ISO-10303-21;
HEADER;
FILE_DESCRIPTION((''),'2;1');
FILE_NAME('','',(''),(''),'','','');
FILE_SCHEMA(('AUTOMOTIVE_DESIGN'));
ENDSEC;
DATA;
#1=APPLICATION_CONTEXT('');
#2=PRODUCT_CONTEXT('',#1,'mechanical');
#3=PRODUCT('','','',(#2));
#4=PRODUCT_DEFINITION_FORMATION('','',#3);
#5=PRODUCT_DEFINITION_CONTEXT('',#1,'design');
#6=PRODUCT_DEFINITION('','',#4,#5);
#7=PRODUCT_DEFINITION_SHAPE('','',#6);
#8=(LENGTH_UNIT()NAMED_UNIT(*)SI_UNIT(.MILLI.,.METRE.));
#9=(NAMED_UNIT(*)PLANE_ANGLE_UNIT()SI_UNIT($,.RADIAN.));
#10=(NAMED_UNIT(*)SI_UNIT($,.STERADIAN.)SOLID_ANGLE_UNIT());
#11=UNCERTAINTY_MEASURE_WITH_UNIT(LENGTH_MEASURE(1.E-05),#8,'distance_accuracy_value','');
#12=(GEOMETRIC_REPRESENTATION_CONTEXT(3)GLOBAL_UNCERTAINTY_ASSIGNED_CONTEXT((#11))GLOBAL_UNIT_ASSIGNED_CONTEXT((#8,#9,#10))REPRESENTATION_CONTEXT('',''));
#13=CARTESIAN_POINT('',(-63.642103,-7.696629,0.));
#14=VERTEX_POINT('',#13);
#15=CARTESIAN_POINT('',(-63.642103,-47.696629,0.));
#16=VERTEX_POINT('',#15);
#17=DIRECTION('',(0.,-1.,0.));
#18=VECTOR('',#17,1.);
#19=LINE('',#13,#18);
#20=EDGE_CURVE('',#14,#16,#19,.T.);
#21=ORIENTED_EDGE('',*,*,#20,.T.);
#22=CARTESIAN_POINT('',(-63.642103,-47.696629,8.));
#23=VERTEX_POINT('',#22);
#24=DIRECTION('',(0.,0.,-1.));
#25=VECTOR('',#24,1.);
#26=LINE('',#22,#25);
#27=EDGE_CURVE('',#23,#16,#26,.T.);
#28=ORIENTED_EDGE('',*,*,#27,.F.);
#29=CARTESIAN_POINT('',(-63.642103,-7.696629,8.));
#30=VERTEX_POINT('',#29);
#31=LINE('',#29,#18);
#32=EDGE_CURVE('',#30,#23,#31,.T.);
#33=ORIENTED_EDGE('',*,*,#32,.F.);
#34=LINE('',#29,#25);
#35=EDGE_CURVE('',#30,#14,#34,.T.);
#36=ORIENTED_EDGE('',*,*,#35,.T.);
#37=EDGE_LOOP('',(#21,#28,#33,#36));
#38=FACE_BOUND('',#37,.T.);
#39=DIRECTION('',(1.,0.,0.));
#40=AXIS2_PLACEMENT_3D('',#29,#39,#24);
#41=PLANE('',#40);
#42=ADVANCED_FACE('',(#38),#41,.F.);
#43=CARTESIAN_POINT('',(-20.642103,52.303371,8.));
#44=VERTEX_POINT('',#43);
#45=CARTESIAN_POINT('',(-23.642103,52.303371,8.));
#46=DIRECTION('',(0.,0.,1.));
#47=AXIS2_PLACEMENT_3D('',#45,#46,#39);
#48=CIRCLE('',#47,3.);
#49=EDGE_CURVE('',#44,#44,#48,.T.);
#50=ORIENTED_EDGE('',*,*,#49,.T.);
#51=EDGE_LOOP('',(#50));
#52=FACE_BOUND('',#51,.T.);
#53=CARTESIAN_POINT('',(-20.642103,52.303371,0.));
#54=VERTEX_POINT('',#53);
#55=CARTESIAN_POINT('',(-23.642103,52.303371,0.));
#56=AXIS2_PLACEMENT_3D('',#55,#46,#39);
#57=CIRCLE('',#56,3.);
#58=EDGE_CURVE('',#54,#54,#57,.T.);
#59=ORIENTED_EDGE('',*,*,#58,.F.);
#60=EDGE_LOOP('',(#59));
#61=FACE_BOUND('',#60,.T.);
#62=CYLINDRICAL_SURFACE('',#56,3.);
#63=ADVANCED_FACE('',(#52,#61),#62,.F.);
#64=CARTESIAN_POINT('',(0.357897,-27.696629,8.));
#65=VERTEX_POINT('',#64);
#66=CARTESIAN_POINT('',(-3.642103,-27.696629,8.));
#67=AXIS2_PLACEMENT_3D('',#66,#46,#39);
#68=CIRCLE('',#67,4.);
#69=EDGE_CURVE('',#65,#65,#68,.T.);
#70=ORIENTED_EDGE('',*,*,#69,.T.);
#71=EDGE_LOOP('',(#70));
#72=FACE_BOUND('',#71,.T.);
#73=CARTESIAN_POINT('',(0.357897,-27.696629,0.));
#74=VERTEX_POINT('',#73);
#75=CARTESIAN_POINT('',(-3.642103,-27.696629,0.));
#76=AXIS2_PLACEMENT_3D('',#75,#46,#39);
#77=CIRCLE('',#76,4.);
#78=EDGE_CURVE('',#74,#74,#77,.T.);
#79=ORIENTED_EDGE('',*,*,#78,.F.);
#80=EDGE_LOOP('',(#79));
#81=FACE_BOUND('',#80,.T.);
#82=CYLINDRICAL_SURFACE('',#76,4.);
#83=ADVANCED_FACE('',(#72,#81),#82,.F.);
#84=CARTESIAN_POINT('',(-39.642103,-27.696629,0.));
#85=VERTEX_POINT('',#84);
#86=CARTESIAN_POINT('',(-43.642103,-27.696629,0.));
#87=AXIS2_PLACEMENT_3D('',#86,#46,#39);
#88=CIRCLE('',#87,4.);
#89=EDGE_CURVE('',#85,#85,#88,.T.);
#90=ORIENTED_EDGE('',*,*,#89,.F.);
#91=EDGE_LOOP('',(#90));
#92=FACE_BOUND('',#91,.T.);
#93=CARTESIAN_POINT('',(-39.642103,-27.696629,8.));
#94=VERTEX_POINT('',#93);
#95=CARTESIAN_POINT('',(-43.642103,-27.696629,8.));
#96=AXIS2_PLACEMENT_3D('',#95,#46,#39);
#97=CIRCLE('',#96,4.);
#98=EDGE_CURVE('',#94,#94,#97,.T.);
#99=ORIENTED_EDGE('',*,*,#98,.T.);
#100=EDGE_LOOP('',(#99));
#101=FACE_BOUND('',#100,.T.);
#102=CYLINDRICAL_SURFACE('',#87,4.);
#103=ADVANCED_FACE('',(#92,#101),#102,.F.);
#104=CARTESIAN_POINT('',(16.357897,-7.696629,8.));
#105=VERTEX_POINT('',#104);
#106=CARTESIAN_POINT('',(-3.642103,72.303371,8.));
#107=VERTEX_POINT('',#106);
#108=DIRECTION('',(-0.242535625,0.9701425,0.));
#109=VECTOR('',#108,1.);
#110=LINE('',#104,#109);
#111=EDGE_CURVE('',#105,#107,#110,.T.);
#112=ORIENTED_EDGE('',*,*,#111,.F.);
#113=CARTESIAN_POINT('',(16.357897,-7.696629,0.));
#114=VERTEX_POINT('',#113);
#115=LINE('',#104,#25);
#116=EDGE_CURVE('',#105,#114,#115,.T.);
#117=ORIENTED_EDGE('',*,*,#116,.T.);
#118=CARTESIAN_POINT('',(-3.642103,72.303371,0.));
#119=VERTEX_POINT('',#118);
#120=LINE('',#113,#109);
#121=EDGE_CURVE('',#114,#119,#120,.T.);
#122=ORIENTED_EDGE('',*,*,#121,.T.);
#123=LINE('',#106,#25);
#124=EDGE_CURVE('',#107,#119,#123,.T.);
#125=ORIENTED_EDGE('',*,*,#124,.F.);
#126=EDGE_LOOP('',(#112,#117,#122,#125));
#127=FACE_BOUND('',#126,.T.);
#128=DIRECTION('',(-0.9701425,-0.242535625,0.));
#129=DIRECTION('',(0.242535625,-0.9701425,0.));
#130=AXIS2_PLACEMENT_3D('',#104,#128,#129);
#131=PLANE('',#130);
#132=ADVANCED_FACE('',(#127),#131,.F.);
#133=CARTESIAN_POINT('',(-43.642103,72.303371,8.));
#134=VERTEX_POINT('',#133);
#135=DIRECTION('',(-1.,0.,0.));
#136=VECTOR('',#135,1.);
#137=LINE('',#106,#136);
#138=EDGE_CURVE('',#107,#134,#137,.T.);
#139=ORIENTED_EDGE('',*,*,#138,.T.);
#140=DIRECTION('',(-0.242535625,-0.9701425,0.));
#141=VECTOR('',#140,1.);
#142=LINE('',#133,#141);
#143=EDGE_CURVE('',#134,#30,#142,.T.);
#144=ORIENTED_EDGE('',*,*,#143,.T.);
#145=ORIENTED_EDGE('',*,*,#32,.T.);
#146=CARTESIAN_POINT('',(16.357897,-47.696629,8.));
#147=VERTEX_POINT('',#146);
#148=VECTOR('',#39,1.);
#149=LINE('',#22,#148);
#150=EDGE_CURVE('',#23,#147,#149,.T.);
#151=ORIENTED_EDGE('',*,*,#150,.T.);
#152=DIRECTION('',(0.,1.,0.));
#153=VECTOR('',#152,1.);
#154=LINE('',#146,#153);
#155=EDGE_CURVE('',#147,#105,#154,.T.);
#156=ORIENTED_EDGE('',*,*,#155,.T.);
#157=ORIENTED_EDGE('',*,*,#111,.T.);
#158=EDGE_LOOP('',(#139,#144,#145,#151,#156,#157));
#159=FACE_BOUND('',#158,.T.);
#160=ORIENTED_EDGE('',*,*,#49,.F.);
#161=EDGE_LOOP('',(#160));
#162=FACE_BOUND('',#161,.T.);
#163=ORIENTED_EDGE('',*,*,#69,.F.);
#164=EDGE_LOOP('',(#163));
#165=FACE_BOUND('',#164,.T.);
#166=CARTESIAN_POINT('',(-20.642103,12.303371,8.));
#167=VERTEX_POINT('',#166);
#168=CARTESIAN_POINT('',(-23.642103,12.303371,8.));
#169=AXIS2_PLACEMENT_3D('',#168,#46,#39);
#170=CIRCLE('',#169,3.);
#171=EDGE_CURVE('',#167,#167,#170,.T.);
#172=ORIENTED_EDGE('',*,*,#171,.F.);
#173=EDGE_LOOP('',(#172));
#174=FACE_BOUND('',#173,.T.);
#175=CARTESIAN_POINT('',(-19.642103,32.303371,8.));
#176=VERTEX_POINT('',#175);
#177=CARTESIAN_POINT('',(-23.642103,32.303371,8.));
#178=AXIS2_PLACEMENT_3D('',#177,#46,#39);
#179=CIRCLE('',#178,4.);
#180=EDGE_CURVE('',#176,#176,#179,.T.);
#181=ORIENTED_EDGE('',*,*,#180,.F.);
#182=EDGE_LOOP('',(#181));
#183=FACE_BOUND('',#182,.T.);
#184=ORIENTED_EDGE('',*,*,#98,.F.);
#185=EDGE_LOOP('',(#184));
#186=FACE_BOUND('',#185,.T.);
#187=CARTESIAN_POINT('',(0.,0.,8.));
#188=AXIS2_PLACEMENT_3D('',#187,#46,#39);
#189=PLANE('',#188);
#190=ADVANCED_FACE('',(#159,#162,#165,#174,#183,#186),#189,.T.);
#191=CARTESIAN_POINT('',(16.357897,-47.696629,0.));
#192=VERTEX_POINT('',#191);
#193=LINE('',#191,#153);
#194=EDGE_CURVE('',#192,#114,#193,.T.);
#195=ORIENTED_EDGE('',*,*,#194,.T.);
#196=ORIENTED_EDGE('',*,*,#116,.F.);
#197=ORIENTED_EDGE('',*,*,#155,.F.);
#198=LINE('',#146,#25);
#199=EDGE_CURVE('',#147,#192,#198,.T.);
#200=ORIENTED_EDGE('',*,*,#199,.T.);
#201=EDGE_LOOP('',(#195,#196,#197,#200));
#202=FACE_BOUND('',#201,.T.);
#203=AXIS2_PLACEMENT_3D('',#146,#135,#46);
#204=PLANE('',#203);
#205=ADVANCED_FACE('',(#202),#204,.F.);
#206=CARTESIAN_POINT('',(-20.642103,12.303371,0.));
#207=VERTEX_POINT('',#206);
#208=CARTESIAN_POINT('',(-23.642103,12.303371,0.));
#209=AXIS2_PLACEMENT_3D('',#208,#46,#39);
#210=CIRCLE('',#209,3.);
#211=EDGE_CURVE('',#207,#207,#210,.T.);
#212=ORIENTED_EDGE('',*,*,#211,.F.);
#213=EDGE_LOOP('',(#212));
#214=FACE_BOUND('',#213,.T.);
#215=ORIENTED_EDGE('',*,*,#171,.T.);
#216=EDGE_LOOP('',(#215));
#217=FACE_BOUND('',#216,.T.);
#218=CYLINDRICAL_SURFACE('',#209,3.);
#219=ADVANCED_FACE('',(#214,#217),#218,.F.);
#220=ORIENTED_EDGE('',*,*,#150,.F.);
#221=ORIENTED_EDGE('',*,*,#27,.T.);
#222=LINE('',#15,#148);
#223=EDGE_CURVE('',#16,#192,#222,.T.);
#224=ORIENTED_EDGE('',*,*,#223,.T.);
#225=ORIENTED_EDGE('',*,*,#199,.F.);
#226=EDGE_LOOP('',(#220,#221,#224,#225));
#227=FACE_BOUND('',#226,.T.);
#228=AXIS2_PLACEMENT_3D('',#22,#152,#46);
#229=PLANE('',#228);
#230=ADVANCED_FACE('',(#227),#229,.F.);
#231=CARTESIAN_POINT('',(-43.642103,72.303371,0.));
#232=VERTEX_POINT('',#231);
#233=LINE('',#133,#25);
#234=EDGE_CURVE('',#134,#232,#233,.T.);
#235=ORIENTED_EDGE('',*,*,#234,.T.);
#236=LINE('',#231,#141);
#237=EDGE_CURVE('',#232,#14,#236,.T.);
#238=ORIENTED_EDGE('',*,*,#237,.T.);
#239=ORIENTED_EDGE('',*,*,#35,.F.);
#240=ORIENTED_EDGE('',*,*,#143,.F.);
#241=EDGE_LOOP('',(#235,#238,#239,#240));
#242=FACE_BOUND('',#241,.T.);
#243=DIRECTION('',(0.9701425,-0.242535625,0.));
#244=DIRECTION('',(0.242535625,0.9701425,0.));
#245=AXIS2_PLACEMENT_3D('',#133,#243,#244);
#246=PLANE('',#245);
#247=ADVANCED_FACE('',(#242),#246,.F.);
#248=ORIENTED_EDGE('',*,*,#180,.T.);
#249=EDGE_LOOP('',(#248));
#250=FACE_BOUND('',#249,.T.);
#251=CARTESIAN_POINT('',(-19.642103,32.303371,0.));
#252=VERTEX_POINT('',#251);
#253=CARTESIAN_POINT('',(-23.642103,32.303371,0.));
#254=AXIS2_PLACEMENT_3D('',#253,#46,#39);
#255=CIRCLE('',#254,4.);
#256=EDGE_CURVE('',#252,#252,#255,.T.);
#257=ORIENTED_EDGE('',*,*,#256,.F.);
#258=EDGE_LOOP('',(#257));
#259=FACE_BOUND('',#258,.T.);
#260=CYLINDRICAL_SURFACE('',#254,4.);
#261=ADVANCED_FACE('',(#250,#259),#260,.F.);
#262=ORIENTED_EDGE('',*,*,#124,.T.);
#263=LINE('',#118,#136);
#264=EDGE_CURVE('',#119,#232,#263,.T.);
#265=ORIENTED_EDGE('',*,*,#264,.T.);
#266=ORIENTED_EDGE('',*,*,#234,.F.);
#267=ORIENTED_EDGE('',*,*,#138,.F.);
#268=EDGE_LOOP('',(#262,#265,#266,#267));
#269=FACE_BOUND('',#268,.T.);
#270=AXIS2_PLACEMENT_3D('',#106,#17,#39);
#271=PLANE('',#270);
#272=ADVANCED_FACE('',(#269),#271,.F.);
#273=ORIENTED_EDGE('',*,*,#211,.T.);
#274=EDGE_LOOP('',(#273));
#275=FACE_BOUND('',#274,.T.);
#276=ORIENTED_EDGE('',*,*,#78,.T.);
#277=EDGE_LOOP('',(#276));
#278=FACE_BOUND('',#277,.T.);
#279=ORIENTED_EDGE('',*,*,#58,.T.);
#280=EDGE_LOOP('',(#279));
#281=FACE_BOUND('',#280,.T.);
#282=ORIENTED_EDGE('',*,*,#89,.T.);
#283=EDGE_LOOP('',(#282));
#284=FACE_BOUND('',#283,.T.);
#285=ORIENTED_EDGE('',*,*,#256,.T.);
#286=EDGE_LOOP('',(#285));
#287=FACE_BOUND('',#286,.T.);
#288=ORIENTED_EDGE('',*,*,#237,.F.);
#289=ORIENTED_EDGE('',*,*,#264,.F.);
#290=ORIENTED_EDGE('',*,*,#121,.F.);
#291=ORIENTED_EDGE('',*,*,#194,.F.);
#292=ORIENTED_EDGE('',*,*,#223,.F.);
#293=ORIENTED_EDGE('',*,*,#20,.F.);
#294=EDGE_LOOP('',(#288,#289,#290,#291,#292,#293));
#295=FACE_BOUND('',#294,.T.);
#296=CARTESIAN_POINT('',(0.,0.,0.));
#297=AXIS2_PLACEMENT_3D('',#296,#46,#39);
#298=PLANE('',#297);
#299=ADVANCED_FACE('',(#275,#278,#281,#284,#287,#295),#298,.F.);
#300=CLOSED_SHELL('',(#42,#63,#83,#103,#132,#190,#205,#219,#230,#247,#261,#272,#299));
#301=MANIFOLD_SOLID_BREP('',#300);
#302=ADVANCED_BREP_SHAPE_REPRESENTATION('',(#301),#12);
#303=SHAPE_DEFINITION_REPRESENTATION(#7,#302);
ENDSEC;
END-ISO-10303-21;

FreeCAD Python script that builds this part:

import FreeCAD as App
import Part
import Sketcher
Q = App.Units.Quantity

doc = App.newDocument("Part")
body = doc.addObject("PartDesign::Body", "Body")

# Sketch on XY plane
sketch1 = body.newObject("Sketcher::SketchObject", "Sketch")
sketch1.AttachmentSupport = (doc.getObject("XY_Plane"), [""])
sketch1.MapMode = "FlatFace"
sketch1.addGeometry([
    Part.LineSegment(App.Vector(-63.642103, -47.696629, 0), App.Vector(16.357897, -47.696629, 0)),  # 0
    Part.LineSegment(App.Vector(16.357897, -47.696629, 0), App.Vector(16.357897, -7.696629, 0)),  # 1
    Part.LineSegment(App.Vector(16.357897, -7.696629, 0), App.Vector(-3.642103, 72.303371, 0)),  # 2
    Part.LineSegment(App.Vector(-3.642103, 72.303371, 0), App.Vector(-43.642103, 72.303371, 0)),  # 3
    Part.LineSegment(App.Vector(-43.642103, 72.303371, 0), App.Vector(-63.642103, -7.696629, 0)),  # 4
    Part.LineSegment(App.Vector(-63.642103, -7.696629, 0), App.Vector(-63.642103, -47.696629, 0)),  # 5
], False)
sketch1.addConstraint([
    Sketcher.Constraint("Coincident", 0, 2, 1, 1),
    Sketcher.Constraint("Coincident", 1, 2, 2, 1),
    Sketcher.Constraint("Coincident", 2, 2, 3, 1),
    Sketcher.Constraint("Coincident", 3, 2, 4, 1),
    Sketcher.Constraint("Coincident", 4, 2, 5, 1),
    Sketcher.Constraint("Coincident", 5, 2, 0, 1),
    Sketcher.Constraint("Horizontal", 0),
    Sketcher.Constraint("Vertical", 1),
    Sketcher.Constraint("Horizontal", 3),
    Sketcher.Constraint("Vertical", 5),
    Sketcher.Constraint("Horizontal", 1, 2, 4, 2),
    Sketcher.Constraint("Equal", 3, 1),
    Sketcher.Constraint("Equal", 2, 4),
    Sketcher.Constraint("DistanceX", 0, 1, 0, 2, Q("80 mm")),
    Sketcher.Constraint("DistanceX", 3, 2, 3, 1, Q("40 mm")),
    Sketcher.Constraint("DistanceY", 1, 2, 2, 2, Q("80 mm")),
    Sketcher.Constraint("DistanceY", 0, 2, -1, 1, Q("47.696629 mm")),
    Sketcher.Constraint("DistanceX", -1, 1, 0, 2, Q("16.357897 mm")),
])
pad1 = body.newObject("PartDesign::Pad", "Pad")
pad1.Profile = sketch1
pad1.Length = 8

# Sketch on XY plane
sketch2 = body.newObject("Sketcher::SketchObject", "Sketch001")
sketch2.AttachmentSupport = (doc.getObject("XY_Plane"), [""])
sketch2.MapMode = "FlatFace"
sketch2.AttachmentOffset = App.Placement(App.Vector(0, 0, 8), App.Rotation())
sketch2.addGeometry([
    Part.Circle(App.Vector(-23.642103, 52.303371, 0), App.Vector(0, 0, 1), 3),  # 0
    Part.Circle(App.Vector(-23.642103, 32.303371, 0), App.Vector(0, 0, 1), 4),  # 1
    Part.Circle(App.Vector(-23.642103, 12.303371, 0), App.Vector(0, 0, 1), 3),  # 2
    Part.Circle(App.Vector(-43.642103, -27.696629, 0), App.Vector(0, 0, 1), 4),  # 3
    Part.Circle(App.Vector(-3.642103, -27.696629, 0), App.Vector(0, 0, 1), 4),  # 4
], False)
sketch2.addConstraint([
    Sketcher.Constraint("Equal", 0, 2),
    Sketcher.Constraint("Equal", 1, 3),
    Sketcher.Constraint("Equal", 3, 4),
    Sketcher.Constraint("Horizontal", 3, 3, 4, 3),
    Sketcher.Constraint("Vertical", 0, 3, 1, 3),
    Sketcher.Constraint("Vertical", 1, 3, 2, 3),
    Sketcher.Constraint("Diameter", 0, Q("6 mm")),
    Sketcher.Constraint("Diameter", 1, Q("8 mm")),
    Sketcher.Constraint("DistanceY", 1, 3, 0, 3, Q("20 mm")),
    Sketcher.Constraint("DistanceY", 2, 3, 1, 3, Q("20 mm")),
    Sketcher.Constraint("DistanceX", 3, 3, 2, 3, Q("20 mm")),
    Sketcher.Constraint("DistanceY", 3, 3, 2, 3, Q("40 mm")),
    Sketcher.Constraint("DistanceX", 3, 3, 4, 3, Q("40 mm")),
    Sketcher.Constraint("DistanceY", -1, 1, 0, 3, Q("52.303371 mm")),
    Sketcher.Constraint("DistanceX", 0, 3, -1, 1, Q("23.642103 mm")),
])
pocket1 = body.newObject("PartDesign::Pocket", "Pocket")
pocket1.Profile = sketch2
pocket1.Type = "ThroughAll"

doc.recompute()
